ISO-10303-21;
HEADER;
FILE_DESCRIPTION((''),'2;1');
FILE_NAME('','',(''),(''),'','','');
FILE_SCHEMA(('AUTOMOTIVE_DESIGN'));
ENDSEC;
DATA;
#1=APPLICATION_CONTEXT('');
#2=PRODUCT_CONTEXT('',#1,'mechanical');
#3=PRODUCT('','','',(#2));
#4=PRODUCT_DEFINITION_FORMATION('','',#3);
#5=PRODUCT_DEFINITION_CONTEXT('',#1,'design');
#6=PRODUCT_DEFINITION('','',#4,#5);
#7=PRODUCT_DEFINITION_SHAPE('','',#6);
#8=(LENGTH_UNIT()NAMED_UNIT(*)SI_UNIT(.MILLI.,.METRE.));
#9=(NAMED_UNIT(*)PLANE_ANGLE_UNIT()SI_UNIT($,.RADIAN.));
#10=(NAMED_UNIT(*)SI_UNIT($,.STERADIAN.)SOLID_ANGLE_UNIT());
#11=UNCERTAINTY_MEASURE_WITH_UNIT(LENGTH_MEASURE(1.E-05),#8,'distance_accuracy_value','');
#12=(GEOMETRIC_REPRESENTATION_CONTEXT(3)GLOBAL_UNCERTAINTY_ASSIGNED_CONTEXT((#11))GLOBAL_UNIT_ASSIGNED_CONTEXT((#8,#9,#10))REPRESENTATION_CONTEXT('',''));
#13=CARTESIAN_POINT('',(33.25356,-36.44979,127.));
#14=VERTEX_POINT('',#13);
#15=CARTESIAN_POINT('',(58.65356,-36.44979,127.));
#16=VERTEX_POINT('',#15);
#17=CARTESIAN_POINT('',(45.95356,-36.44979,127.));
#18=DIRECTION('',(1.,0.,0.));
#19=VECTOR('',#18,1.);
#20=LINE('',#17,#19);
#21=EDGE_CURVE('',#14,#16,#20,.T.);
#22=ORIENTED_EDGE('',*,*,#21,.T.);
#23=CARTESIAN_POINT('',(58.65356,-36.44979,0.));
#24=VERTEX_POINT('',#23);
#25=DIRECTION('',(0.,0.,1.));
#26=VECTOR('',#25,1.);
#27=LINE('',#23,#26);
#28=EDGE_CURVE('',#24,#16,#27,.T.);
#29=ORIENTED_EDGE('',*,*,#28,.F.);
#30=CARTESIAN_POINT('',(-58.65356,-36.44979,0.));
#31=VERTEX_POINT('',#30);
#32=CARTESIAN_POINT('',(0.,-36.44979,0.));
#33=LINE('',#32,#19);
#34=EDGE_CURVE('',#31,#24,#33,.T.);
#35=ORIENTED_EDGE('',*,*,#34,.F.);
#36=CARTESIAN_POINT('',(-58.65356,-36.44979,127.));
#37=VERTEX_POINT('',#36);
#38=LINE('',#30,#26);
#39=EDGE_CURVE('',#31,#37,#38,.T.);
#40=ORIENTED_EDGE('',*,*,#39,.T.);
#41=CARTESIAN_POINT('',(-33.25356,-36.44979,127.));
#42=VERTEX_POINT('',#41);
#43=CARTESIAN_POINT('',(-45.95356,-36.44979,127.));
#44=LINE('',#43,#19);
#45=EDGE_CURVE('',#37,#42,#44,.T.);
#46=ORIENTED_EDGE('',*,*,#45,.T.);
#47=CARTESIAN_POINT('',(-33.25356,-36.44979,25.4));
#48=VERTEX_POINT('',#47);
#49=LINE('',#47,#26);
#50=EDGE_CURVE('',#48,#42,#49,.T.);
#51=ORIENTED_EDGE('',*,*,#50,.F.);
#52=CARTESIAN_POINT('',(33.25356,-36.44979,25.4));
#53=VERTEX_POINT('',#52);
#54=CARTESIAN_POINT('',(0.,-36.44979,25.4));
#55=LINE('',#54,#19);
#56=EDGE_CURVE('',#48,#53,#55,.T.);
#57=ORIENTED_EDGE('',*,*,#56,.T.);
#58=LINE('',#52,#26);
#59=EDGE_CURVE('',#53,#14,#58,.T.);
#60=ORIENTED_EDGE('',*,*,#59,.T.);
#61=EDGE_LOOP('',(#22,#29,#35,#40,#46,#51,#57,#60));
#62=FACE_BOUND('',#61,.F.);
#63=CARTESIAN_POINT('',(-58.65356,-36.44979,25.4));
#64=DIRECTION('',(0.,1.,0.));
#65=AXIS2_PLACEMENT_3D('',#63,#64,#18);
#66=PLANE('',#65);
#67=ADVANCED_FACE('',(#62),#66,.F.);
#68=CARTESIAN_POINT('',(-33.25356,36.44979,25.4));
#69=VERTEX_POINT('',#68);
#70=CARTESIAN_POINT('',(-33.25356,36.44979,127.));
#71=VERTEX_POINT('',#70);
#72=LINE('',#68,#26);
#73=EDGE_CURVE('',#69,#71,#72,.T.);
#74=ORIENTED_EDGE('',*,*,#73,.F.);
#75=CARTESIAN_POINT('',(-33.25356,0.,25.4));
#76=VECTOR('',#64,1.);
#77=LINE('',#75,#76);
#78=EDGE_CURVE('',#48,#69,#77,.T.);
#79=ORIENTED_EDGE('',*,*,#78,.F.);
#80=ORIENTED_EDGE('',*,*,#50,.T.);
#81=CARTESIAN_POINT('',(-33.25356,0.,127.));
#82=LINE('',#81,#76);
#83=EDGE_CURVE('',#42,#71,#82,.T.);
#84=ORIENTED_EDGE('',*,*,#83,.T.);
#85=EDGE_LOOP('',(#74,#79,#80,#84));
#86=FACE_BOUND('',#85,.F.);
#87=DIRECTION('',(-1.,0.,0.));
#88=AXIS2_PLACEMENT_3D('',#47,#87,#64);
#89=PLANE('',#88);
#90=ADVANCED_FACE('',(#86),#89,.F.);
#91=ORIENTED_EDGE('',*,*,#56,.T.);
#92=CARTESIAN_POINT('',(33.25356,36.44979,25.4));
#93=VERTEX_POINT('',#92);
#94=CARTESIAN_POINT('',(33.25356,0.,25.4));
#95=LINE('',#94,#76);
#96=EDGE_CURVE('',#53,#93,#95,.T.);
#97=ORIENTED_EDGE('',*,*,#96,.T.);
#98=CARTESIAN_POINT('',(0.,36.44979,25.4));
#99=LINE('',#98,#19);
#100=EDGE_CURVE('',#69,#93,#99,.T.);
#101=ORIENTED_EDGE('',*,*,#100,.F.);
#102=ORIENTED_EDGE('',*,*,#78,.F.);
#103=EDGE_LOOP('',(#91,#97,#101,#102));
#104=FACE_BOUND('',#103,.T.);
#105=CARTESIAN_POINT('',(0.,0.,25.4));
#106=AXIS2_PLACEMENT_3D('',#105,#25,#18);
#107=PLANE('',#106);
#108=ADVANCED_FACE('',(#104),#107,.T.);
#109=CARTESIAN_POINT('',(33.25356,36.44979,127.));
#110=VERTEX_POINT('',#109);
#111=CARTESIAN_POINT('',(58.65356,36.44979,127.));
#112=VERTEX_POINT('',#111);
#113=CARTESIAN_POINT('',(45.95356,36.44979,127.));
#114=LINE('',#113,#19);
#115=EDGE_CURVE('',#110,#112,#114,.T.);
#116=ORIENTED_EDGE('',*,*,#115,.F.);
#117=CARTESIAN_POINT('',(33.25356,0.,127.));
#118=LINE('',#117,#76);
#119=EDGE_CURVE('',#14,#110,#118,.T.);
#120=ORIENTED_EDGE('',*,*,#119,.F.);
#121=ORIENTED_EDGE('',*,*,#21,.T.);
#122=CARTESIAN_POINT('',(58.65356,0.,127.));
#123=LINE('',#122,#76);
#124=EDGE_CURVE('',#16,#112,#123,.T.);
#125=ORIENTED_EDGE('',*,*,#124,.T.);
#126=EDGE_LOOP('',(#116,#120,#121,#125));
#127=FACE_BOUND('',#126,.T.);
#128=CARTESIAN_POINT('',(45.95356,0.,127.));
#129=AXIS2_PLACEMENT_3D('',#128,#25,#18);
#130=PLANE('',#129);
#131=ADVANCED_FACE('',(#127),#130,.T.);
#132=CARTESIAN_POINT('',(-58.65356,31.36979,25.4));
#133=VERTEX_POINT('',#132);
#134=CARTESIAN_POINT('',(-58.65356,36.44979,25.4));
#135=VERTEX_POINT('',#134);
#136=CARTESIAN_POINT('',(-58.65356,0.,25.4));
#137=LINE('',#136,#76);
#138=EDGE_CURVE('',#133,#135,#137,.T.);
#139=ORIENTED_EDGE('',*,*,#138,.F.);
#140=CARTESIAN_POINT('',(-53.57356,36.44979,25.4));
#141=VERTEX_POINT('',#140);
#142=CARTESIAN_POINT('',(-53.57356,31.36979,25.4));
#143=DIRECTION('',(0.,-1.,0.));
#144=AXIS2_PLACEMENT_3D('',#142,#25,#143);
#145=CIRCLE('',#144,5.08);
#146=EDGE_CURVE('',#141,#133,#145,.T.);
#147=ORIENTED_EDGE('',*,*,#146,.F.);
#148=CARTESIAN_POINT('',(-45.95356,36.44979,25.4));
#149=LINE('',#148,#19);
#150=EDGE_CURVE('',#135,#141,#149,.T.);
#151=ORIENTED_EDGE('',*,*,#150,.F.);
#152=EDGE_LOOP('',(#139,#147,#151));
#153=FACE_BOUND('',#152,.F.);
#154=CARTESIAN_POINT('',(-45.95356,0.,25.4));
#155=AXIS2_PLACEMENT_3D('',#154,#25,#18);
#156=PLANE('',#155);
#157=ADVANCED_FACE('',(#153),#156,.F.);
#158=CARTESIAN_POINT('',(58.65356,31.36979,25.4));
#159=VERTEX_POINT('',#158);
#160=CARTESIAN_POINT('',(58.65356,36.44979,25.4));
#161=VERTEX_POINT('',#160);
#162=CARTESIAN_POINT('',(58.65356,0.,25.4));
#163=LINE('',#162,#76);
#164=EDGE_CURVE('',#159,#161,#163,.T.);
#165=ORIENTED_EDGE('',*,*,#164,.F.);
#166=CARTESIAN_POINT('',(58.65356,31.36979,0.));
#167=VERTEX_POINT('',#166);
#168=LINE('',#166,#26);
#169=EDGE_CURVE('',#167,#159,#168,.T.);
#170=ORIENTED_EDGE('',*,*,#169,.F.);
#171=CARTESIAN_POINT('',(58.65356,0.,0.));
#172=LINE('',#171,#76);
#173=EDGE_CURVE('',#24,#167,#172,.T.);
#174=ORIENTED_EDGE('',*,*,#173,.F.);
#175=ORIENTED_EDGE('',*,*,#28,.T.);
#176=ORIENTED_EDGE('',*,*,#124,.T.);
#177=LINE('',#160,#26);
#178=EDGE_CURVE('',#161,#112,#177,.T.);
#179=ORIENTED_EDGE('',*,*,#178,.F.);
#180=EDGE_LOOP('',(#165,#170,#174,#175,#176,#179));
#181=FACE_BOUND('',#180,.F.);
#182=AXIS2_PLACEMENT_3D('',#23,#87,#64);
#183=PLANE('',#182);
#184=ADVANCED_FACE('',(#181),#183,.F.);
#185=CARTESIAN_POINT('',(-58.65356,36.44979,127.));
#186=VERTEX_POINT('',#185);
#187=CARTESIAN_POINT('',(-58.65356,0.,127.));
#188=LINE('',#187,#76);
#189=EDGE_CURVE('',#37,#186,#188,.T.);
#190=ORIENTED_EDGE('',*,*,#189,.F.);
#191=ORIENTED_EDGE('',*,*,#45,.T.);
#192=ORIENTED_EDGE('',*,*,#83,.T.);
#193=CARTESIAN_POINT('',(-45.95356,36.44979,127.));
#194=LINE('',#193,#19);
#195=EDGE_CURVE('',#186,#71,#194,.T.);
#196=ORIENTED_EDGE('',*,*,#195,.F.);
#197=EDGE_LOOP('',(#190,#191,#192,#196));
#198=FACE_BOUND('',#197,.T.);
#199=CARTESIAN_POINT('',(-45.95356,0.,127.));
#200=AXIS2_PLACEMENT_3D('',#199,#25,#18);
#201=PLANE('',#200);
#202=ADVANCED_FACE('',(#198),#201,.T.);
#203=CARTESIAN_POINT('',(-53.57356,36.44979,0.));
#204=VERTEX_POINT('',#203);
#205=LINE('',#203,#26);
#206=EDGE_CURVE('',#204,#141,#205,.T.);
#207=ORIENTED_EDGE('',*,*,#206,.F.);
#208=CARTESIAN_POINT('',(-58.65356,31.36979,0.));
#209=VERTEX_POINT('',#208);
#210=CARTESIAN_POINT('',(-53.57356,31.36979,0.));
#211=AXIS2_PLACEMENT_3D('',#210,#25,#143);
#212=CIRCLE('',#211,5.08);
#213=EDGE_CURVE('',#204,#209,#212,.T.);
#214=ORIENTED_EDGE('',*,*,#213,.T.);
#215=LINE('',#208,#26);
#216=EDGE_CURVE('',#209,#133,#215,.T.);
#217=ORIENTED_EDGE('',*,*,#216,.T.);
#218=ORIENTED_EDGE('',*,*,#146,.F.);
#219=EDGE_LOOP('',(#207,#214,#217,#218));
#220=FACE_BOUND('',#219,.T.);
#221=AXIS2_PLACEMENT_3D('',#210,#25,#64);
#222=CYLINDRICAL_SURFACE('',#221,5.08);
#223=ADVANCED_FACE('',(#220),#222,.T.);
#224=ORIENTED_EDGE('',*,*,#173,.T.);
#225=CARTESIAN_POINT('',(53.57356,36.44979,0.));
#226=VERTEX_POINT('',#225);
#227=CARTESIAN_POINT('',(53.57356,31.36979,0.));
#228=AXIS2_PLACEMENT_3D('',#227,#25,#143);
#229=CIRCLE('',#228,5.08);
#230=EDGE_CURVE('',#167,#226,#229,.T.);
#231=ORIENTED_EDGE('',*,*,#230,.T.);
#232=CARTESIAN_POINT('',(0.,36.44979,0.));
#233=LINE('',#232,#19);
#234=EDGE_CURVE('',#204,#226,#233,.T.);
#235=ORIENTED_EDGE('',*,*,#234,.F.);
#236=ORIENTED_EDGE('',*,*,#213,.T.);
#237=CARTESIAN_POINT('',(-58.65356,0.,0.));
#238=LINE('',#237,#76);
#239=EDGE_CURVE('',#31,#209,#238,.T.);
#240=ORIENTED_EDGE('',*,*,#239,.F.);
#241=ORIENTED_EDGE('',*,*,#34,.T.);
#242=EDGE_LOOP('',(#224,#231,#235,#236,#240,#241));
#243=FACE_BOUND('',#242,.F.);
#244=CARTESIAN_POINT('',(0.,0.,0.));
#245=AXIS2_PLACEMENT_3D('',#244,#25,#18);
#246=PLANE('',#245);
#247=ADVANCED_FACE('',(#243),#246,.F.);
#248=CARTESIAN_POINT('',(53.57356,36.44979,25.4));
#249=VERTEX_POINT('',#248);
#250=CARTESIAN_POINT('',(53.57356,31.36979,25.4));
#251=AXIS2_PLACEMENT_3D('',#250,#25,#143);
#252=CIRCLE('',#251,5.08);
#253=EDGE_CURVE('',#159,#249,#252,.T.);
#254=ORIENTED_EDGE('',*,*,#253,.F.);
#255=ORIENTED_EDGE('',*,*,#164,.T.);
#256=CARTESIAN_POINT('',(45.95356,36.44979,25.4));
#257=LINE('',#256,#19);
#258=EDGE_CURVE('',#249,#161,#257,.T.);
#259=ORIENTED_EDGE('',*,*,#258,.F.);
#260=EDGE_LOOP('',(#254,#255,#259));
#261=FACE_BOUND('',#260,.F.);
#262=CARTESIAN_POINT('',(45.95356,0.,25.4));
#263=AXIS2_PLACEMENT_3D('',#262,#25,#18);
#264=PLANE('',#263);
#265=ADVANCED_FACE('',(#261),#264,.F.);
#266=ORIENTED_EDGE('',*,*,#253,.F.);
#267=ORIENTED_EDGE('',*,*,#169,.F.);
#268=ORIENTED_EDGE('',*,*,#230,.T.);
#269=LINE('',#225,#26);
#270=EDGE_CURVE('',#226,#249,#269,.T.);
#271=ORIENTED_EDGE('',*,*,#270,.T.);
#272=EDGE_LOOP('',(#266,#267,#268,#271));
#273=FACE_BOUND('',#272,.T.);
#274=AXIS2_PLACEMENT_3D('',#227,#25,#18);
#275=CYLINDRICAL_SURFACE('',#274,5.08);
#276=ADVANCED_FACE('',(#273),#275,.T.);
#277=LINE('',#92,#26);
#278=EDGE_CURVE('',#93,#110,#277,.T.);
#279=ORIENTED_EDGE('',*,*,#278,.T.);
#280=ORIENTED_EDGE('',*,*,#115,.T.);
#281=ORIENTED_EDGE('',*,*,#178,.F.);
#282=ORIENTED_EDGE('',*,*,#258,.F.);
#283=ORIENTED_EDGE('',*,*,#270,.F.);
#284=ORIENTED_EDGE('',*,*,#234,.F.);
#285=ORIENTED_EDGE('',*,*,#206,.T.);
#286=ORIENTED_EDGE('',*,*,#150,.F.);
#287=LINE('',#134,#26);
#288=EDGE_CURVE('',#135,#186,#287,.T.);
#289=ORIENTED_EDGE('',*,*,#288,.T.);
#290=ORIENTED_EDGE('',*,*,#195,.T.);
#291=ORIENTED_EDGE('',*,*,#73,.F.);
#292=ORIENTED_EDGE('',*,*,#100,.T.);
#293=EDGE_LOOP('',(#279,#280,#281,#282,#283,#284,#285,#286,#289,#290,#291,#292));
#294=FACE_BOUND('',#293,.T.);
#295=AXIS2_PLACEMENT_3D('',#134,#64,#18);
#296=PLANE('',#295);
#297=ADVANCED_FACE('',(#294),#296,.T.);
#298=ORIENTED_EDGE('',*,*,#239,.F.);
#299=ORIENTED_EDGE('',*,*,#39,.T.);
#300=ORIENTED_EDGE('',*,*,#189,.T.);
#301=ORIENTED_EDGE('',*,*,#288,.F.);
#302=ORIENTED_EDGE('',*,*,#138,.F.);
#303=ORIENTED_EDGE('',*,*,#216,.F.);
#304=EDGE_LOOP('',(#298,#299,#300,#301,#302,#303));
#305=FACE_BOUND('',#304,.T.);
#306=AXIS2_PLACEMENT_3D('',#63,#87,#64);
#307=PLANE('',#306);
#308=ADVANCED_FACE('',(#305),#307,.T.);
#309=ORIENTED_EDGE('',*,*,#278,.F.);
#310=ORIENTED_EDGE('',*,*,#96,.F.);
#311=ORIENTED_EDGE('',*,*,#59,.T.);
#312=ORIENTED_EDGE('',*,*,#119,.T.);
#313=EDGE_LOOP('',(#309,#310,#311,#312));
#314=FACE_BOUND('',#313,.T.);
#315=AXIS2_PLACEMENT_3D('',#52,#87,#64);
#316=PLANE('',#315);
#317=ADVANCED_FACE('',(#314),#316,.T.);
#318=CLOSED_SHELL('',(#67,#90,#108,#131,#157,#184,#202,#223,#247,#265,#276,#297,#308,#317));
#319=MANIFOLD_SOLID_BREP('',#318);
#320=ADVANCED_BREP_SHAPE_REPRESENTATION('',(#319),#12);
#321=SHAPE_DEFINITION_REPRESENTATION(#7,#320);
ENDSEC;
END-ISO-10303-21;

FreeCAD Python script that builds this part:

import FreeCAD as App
import Part
import Sketcher

V = App.Vector
Q = App.Units.Quantity


def edges_at(feature, points):
    """Names of the edges that pass closest to the given points."""
    edges = feature.Shape.Edges
    near = lambda p: min(range(len(edges)), key=lambda i: edges[i].distToShape(Part.Vertex(*p))[0])
    return sorted({f"Edge{near(p) + 1}" for p in points})


def add_polygon(sketch, points):
    """Adds a closed chain of lines whose ends are joined by coincident constraints."""
    first, n = sketch.GeometryCount, len(points)
    for a, b in zip(points, points[1:] + points[:1]):
        sketch.addGeometry(Part.LineSegment(App.Vector(*a, 0), App.Vector(*b, 0)), False)
    for i in range(n):
        sketch.addConstraint(Sketcher.Constraint("Coincident", first + i, 2, first + (i + 1) % n, 1))

doc = App.newDocument("Part")
body = doc.addObject("PartDesign::Body", "Body")

sketch1 = body.newObject("Sketcher::SketchObject", "Sketch")
sketch1.AttachmentSupport = (doc.getObject("XY_Plane"), [""])
sketch1.MapMode = "FlatFace"
add_polygon(sketch1, [(-58.65356, 36.44979), (-58.65356, -36.44979), (58.65356, -36.44979), (58.65356, 36.44979)])
sketch1.addConstraint(Sketcher.Constraint("Vertical", 0))
sketch1.addConstraint(Sketcher.Constraint("Horizontal", 1))
sketch1.addConstraint(Sketcher.Constraint("Vertical", 2))
sketch1.addConstraint(Sketcher.Constraint("Horizontal", 3))
sketch1.addConstraint(Sketcher.Constraint("Symmetric", 0, 2, 2, 2, -1, 1))
sketch1.addConstraint(Sketcher.Constraint("DistanceX", 1, 1, 1, 2, 117.30712))
sketch1.addConstraint(Sketcher.Constraint("DistanceY", 0, 2, 0, 1, 72.89958))
pad1 = body.newObject("PartDesign::Pad", "Pad")
pad1.Profile = sketch1
pad1.Length = Q("1 in")
doc.recompute()

fillet = body.newObject("PartDesign::Fillet", "Fillet")
fillet.Base = (pad1, edges_at(pad1, [(58.654, 36.45, 12.7)]))
fillet.Radius = Q("0.2 in")
doc.recompute()

fillet2 = body.newObject("PartDesign::Fillet", "Fillet001")
fillet2.Base = (fillet, edges_at(fillet, [(-58.654, 36.45, 12.7)]))
fillet2.Radius = Q("0.2 in")

sketch2 = body.newObject("Sketcher::SketchObject", "Sketch001")
sketch2.AttachmentSupport = (doc.getObject("XY_Plane"), [""])
sketch2.MapMode = "FlatFace"
sketch2.AttachmentOffset = App.Placement(V(0, 0, 1 * 25.4), App.Rotation())
add_polygon(sketch2, [(-58.65356, 36.44979), (-58.65356, -36.44979), (-33.25356, -36.44979), (-33.25356, 36.44979)])
add_polygon(sketch2, [(33.25356, 36.44979), (33.25356, -36.44979), (58.65356, -36.44979), (58.65356, 36.44979)])
sketch2.addConstraint(Sketcher.Constraint("Vertical", 0))
sketch2.addConstraint(Sketcher.Constraint("Horizontal", 1))
sketch2.addConstraint(Sketcher.Constraint("Vertical", 2))
sketch2.addConstraint(Sketcher.Constraint("Horizontal", 3))
sketch2.addConstraint(Sketcher.Constraint("Vertical", 4))
sketch2.addConstraint(Sketcher.Constraint("Horizontal", 5))
sketch2.addConstraint(Sketcher.Constraint("Vertical", 6))
sketch2.addConstraint(Sketcher.Constraint("Horizontal", 7))
sketch2.addConstraint(Sketcher.Constraint("Symmetric", 2, 2, 4, 2, -1, 1))
sketch2.addConstraint(Sketcher.Constraint("Symmetric", 0, 2, 6, 2, -1, 1))
sketch2.addConstraint(Sketcher.Constraint("Horizontal", 1, 2, 4, 2))
sketch2.addConstraint(Sketcher.Constraint("DistanceX", 1, 1, 1, 2, Q("1 in")))
sketch2.addConstraint(Sketcher.Constraint("DistanceY", 0, 2, 0, 1, 72.89958))
sketch2.addConstraint(Sketcher.Constraint("DistanceX", 0, 2, -1, 1, 58.65356))
pad2 = body.newObject("PartDesign::Pad", "Pad001")
pad2.Profile = sketch2
pad2.Length = Q("4 in")

doc.recompute()
